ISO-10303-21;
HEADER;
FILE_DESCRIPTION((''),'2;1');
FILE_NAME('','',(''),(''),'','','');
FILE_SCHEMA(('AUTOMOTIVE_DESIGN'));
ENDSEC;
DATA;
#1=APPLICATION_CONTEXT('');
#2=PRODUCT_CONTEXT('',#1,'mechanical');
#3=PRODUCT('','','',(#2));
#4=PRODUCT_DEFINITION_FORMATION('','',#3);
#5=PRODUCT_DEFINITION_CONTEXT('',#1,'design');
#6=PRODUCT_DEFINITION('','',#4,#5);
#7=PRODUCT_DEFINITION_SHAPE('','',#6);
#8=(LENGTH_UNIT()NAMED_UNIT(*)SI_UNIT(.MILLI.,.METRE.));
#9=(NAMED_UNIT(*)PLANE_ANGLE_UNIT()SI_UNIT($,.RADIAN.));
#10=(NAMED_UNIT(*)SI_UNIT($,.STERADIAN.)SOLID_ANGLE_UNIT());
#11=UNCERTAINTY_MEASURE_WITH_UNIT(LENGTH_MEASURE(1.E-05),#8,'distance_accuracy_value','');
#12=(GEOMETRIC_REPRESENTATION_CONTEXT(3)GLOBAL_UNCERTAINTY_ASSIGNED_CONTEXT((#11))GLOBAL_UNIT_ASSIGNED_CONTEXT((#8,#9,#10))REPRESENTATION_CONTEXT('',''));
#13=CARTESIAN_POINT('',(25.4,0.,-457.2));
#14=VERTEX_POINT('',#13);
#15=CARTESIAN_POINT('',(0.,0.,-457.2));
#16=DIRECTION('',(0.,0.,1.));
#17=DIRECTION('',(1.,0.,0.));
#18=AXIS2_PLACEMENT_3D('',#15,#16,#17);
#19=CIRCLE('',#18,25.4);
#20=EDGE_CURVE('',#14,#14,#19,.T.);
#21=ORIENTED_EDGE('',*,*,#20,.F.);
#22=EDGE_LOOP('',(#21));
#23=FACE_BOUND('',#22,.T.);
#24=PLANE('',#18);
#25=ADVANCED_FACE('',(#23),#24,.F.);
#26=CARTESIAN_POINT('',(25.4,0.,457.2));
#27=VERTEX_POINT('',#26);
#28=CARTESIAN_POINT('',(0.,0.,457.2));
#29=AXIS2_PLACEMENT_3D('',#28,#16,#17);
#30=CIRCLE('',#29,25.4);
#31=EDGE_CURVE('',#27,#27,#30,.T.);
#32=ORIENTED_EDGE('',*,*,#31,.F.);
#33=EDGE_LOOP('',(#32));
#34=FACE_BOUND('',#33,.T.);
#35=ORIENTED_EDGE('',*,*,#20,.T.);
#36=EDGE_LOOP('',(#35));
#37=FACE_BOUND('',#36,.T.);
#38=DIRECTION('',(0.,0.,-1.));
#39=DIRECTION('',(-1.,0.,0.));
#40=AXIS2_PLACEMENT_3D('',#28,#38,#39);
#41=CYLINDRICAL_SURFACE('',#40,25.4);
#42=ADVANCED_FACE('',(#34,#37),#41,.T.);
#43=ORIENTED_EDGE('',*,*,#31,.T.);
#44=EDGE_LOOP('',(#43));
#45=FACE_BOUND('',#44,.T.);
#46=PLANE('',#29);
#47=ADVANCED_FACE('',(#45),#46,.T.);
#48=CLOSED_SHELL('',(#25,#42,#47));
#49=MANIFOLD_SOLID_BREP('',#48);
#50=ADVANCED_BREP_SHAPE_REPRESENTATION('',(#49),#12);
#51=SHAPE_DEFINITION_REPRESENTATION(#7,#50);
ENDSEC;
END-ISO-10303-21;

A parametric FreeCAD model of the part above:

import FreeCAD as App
import Part
import Sketcher
Q = App.Units.Quantity

doc = App.newDocument("Part")
params = doc.addObject("Spreadsheet::Sheet", "Params")
for row, (alias, value) in enumerate([
    ("sketch1_diameter", "2 in"),
    ("pad1_length", "18 in"),
    ("pad1_length2", "18 in"),
], start=1):
    params.set(f"A{row}", alias)
    params.set(f"B{row}", "=" + value)
    params.setAlias(f"B{row}", alias)

body = doc.addObject("PartDesign::Body", "Body")

# Sketch on XY plane
sketch1 = doc.addObject("Sketcher::SketchObject", "Sketch")
body.addObject(sketch1)
sketch1.AttachmentSupport = (doc.XY_Plane, [""])
sketch1.MapMode = "FlatFace"
sketch1.addGeometry(Part.Circle(App.Vector(0, 0, 0), App.Vector(0, 0, 1), 25), False)
sketch1.addConstraint([
    Sketcher.Constraint("Coincident", 0, 3, -1, 1),
    Sketcher.Constraint("Diameter", 0, Q("2 in")),
])
sketch1.setExpression("Constraints[1]", "Params.sketch1_diameter")
pad1 = doc.addObject("PartDesign::Pad", "Pad")
body.addObject(pad1)
pad1.Profile = sketch1
pad1.Type = "TwoLengths"
pad1.setExpression("Length", "Params.pad1_length")
pad1.setExpression("Length2", "Params.pad1_length2")

doc.recompute()
